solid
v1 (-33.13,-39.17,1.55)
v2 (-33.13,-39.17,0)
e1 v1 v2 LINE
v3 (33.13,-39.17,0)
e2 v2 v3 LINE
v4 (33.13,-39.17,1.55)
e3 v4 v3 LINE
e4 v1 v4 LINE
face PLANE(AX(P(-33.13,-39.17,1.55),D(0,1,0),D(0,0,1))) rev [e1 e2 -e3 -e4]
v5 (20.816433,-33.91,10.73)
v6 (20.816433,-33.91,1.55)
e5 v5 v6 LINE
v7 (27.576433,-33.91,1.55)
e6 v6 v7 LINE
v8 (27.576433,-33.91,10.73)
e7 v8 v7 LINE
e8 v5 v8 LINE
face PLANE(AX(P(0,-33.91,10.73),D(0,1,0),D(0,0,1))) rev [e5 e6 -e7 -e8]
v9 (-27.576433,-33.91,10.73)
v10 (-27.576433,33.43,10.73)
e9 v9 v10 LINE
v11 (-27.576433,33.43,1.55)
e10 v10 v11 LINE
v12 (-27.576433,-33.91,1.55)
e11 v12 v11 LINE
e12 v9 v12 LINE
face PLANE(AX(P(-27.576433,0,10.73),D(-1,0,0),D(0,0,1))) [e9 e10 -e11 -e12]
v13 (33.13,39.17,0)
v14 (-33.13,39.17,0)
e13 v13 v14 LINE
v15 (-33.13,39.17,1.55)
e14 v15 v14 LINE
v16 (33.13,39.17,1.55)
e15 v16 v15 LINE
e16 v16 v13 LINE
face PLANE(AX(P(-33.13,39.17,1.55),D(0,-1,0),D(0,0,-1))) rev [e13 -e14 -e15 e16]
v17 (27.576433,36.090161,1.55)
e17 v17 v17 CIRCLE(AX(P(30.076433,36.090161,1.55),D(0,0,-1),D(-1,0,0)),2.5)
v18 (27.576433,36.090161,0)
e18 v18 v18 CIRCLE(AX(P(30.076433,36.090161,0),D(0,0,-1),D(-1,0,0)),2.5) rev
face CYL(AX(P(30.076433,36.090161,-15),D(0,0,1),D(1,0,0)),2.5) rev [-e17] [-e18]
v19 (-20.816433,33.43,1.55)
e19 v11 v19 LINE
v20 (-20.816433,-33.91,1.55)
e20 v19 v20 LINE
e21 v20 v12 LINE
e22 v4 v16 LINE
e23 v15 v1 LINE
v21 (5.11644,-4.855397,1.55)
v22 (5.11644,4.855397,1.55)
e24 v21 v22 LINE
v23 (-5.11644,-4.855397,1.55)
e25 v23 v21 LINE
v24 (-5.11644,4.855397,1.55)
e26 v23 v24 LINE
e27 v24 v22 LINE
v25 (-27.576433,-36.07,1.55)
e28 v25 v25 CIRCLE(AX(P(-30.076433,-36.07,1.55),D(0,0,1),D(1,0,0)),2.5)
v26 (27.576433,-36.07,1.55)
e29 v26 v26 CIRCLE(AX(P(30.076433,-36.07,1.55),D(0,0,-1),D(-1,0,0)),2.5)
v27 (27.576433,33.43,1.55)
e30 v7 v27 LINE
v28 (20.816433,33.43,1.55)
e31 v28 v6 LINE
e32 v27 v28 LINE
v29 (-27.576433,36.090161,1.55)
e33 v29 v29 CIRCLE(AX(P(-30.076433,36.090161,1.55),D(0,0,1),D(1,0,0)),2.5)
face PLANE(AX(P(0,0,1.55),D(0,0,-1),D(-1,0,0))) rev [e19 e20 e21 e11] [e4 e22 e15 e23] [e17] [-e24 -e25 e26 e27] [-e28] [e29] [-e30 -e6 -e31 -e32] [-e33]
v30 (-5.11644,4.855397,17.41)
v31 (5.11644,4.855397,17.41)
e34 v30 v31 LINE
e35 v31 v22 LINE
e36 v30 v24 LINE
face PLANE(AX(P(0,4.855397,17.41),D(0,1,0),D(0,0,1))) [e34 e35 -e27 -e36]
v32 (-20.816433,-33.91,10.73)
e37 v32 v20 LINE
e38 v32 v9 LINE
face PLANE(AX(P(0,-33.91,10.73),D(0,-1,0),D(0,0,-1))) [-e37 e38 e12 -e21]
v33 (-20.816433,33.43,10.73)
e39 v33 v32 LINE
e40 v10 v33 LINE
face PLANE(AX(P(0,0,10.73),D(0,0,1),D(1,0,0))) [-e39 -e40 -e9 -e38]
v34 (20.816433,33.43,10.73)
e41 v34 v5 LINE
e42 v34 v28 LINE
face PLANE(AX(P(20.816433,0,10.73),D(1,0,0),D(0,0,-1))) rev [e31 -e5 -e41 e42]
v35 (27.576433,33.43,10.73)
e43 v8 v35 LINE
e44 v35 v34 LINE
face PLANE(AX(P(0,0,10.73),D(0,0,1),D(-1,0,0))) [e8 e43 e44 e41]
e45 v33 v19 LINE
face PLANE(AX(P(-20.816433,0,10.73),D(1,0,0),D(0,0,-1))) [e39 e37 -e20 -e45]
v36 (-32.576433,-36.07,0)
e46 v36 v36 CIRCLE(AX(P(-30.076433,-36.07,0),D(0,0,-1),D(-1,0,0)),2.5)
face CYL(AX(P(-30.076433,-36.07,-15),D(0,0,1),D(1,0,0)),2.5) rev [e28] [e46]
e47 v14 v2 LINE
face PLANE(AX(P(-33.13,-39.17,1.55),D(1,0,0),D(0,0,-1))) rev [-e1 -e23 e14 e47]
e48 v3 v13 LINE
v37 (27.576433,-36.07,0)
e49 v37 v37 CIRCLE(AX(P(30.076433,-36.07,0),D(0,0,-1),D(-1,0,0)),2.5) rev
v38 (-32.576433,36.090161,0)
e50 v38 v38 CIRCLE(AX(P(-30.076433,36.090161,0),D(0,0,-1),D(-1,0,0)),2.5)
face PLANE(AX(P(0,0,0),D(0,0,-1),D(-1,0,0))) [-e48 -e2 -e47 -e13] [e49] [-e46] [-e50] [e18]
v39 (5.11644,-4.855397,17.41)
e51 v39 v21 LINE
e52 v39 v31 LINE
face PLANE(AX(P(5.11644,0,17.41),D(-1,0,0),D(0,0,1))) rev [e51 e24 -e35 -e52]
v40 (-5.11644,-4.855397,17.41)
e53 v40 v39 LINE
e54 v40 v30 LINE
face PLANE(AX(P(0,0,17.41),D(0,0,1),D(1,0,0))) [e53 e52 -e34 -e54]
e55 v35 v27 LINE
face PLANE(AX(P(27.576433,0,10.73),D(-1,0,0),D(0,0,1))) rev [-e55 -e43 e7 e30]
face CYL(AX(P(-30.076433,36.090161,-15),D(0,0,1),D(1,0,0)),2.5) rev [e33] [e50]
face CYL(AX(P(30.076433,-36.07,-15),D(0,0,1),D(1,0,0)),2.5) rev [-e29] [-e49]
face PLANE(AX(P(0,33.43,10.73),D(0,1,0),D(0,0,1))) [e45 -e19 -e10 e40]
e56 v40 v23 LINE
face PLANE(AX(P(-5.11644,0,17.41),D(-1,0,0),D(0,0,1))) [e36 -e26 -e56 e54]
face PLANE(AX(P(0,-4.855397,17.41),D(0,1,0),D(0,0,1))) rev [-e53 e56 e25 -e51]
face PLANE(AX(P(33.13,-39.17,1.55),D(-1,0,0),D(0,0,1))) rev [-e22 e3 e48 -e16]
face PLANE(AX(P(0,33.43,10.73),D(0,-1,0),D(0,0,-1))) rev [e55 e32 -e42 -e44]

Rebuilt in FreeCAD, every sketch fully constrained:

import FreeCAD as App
import Part
import Sketcher

doc = App.newDocument("Part")
params = doc.addObject("Spreadsheet::Sheet", "Params")
for row, (alias, value) in enumerate([
    ("sketch1_width", "66.26 mm"),
    ("sketch1_height", "78.34 mm"),
    ("pad1_length", "1.55 mm"),
    ("sketch2_diameter", "5 mm"),
    ("pocket1_length", "16.55 mm"),
    ("sketch3_diameter", "5 mm"),
    ("pocket2_length", "16.55 mm"),
    ("sketch4_width", "6.76 mm"),
    ("sketch4_height", "67.34 mm"),
    ("pad2_length", "9.18 mm"),
    ("pad3_length", "15.86 mm"),
], start=1):
    params.set(f"A{row}", alias)
    params.set(f"B{row}", "=" + value)
    params.setAlias(f"B{row}", alias)

body = doc.addObject("PartDesign::Body", "Body")

sketch1 = body.newObject("Sketcher::SketchObject", "Sketch")
sketch1.AttachmentSupport = (doc.getObject("XY_Plane"), [""])
sketch1.MapMode = "FlatFace"
sketch1.addGeometry([
    Part.LineSegment(App.Vector(-33, 39, 0), App.Vector(-33, -39, 0)),
    Part.LineSegment(App.Vector(-33, -39, 0), App.Vector(33, -39, 0)),
    Part.LineSegment(App.Vector(33, -39, 0), App.Vector(33, 39, 0)),
    Part.LineSegment(App.Vector(33, 39, 0), App.Vector(-33, 39, 0)),
], False)
sketch1.addConstraint([
    Sketcher.Constraint("Coincident", 0, 2, 1, 1),
    Sketcher.Constraint("Coincident", 1, 2, 2, 1),
    Sketcher.Constraint("Coincident", 2, 2, 3, 1),
    Sketcher.Constraint("Coincident", 3, 2, 0, 1),
    Sketcher.Constraint("Vertical", 0),
    Sketcher.Constraint("Horizontal", 1),
    Sketcher.Constraint("Vertical", 2),
    Sketcher.Constraint("Horizontal", 3),
    Sketcher.Constraint("Symmetric", 0, 2, 2, 2, -1, 1),
    Sketcher.Constraint("DistanceX", 1, 1, 1, 2, 66.26),
    Sketcher.Constraint("DistanceY", 0, 2, 0, 1, 78.34),
])
sketch1.setExpression("Constraints[9]", "Params.sketch1_width")
sketch1.setExpression("Constraints[10]", "Params.sketch1_height")
pad1 = body.newObject("PartDesign::Pad", "Pad")
pad1.Profile = sketch1
pad1.setExpression("Length", "Params.pad1_length")

sketch2 = body.newObject("Sketcher::SketchObject", "Sketch001")
sketch2.AttachmentSupport = (doc.getObject("XY_Plane"), [""])
sketch2.MapMode = "FlatFace"
sketch2.AttachmentOffset = App.Placement(App.Vector(0, 0, 1.55), App.Rotation())
sketch2.addGeometry(Part.Circle(App.Vector(-30.1, 36.1, 0), App.Vector(0, 0, 1), 2.5), False)
sketch2.addConstraint([
    Sketcher.Constraint("Diameter", 0, 5.0),
    Sketcher.Constraint("DistanceY", -1, 1, 0, 3, 36.090161),
    Sketcher.Constraint("DistanceX", 0, 3, -1, 1, 30.076433),
])
sketch2.setExpression("Constraints[0]", "Params.sketch2_diameter")
pocket1 = body.newObject("PartDesign::Pocket", "Pocket")
pocket1.Profile = sketch2
pocket1.setExpression("Length", "Params.pocket1_length")

sketch3 = body.newObject("Sketcher::SketchObject", "Sketch002")
sketch3.AttachmentSupport = (doc.getObject("XY_Plane"), [""])
sketch3.MapMode = "FlatFace"
sketch3.AttachmentOffset = App.Placement(App.Vector(0, 0, 1.55), App.Rotation())
sketch3.addGeometry(Part.Circle(App.Vector(-30.1, -36.1, 0), App.Vector(0, 0, 1), 2.5), False)
sketch3.addConstraint([
    Sketcher.Constraint("Diameter", 0, 5.0),
    Sketcher.Constraint("DistanceY", 0, 3, -1, 1, 36.07),
    Sketcher.Constraint("DistanceX", 0, 3, -1, 1, 30.076433),
])
sketch3.setExpression("Constraints[0]", "Params.sketch3_diameter")
pocket2 = body.newObject("PartDesign::Pocket", "Pocket001")
pocket2.Profile = sketch3
pocket2.setExpression("Length", "Params.pocket2_length")
doc.recompute()

mirrored = body.newObject("PartDesign::Mirrored", "Mirrored")
mirrored.Originals = [pocket1, pocket2]
mirrored.MirrorPlane = (doc.getObject("YZ_Plane"), [""])
body.Tip = mirrored

sketch4 = body.newObject("Sketcher::SketchObject", "Sketch003")
sketch4.AttachmentSupport = (doc.getObject("XY_Plane"), [""])
sketch4.MapMode = "FlatFace"
sketch4.AttachmentOffset = App.Placement(App.Vector(0, 0, 1.55), App.Rotation())
sketch4.addGeometry([
    Part.LineSegment(App.Vector(-28, 33, 0), App.Vector(-28, -34, 0)),
    Part.LineSegment(App.Vector(-28, -34, 0), App.Vector(-21, -34, 0)),
    Part.LineSegment(App.Vector(-21, -34, 0), App.Vector(-21, 33, 0)),
    Part.LineSegment(App.Vector(-21, 33, 0), App.Vector(-28, 33, 0)),
], False)
sketch4.addConstraint([
    Sketcher.Constraint("Coincident", 0, 2, 1, 1),
    Sketcher.Constraint("Coincident", 1, 2, 2, 1),
    Sketcher.Constraint("Coincident", 2, 2, 3, 1),
    Sketcher.Constraint("Coincident", 3, 2, 0, 1),
    Sketcher.Constraint("Vertical", 0),
    Sketcher.Constraint("Horizontal", 1),
    Sketcher.Constraint("Vertical", 2),
    Sketcher.Constraint("Horizontal", 3),
    Sketcher.Constraint("DistanceX", 1, 1, 1, 2, 6.76),
    Sketcher.Constraint("DistanceY", 0, 2, 0, 1, 67.34),
    Sketcher.Constraint("DistanceY", 0, 2, -1, 1, 33.91),
    Sketcher.Constraint("DistanceX", 0, 2, -1, 1, 27.576433),
])
sketch4.setExpression("Constraints[8]", "Params.sketch4_width")
sketch4.setExpression("Constraints[9]", "Params.sketch4_height")
pad2 = body.newObject("PartDesign::Pad", "Pad001")
pad2.Profile = sketch4
pad2.setExpression("Length", "Params.pad2_length")
doc.recompute()

mirrored2 = body.newObject("PartDesign::Mirrored", "Mirrored001")
mirrored2.Originals = [pad2]
mirrored2.MirrorPlane = (doc.getObject("YZ_Plane"), [""])
body.Tip = mirrored2

sketch5 = body.newObject("Sketcher::SketchObject", "Sketch004")
sketch5.AttachmentSupport = (doc.getObject("XY_Plane"), [""])
sketch5.MapMode = "FlatFace"
sketch5.AttachmentOffset = App.Placement(App.Vector(0, 0, 1.55), App.Rotation())
sketch5.addGeometry([
    Part.LineSegment(App.Vector(-5, 5, 0), App.Vector(-5, -5, 0)),
    Part.LineSegment(App.Vector(-5, -5, 0), App.Vector(5, -5, 0)),
    Part.LineSegment(App.Vector(5, -5, 0), App.Vector(5, 5, 0)),
    Part.LineSegment(App.Vector(5, 5, 0), App.Vector(-5, 5, 0)),
], False)
sketch5.addConstraint([
    Sketcher.Constraint("Coincident", 0, 2, 1, 1),
    Sketcher.Constraint("Coincident", 1, 2, 2, 1),
    Sketcher.Constraint("Coincident", 2, 2, 3, 1),
    Sketcher.Constraint("Coincident", 3, 2, 0, 1),
    Sketcher.Constraint("Vertical", 0),
    Sketcher.Constraint("Horizontal", 1),
    Sketcher.Constraint("Vertical", 2),
    Sketcher.Constraint("Horizontal", 3),
    Sketcher.Constraint("Symmetric", 0, 2, 2, 2, -1, 1),
    Sketcher.Constraint("DistanceX", 1, 1, 1, 2, 10.232879),
    Sketcher.Constraint("DistanceY", 0, 2, 0, 1, 9.710793),
])
pad3 = body.newObject("PartDesign::Pad", "Pad002")
pad3.Profile = sketch5
pad3.setExpression("Length", "Params.pad3_length")

doc.recompute()
